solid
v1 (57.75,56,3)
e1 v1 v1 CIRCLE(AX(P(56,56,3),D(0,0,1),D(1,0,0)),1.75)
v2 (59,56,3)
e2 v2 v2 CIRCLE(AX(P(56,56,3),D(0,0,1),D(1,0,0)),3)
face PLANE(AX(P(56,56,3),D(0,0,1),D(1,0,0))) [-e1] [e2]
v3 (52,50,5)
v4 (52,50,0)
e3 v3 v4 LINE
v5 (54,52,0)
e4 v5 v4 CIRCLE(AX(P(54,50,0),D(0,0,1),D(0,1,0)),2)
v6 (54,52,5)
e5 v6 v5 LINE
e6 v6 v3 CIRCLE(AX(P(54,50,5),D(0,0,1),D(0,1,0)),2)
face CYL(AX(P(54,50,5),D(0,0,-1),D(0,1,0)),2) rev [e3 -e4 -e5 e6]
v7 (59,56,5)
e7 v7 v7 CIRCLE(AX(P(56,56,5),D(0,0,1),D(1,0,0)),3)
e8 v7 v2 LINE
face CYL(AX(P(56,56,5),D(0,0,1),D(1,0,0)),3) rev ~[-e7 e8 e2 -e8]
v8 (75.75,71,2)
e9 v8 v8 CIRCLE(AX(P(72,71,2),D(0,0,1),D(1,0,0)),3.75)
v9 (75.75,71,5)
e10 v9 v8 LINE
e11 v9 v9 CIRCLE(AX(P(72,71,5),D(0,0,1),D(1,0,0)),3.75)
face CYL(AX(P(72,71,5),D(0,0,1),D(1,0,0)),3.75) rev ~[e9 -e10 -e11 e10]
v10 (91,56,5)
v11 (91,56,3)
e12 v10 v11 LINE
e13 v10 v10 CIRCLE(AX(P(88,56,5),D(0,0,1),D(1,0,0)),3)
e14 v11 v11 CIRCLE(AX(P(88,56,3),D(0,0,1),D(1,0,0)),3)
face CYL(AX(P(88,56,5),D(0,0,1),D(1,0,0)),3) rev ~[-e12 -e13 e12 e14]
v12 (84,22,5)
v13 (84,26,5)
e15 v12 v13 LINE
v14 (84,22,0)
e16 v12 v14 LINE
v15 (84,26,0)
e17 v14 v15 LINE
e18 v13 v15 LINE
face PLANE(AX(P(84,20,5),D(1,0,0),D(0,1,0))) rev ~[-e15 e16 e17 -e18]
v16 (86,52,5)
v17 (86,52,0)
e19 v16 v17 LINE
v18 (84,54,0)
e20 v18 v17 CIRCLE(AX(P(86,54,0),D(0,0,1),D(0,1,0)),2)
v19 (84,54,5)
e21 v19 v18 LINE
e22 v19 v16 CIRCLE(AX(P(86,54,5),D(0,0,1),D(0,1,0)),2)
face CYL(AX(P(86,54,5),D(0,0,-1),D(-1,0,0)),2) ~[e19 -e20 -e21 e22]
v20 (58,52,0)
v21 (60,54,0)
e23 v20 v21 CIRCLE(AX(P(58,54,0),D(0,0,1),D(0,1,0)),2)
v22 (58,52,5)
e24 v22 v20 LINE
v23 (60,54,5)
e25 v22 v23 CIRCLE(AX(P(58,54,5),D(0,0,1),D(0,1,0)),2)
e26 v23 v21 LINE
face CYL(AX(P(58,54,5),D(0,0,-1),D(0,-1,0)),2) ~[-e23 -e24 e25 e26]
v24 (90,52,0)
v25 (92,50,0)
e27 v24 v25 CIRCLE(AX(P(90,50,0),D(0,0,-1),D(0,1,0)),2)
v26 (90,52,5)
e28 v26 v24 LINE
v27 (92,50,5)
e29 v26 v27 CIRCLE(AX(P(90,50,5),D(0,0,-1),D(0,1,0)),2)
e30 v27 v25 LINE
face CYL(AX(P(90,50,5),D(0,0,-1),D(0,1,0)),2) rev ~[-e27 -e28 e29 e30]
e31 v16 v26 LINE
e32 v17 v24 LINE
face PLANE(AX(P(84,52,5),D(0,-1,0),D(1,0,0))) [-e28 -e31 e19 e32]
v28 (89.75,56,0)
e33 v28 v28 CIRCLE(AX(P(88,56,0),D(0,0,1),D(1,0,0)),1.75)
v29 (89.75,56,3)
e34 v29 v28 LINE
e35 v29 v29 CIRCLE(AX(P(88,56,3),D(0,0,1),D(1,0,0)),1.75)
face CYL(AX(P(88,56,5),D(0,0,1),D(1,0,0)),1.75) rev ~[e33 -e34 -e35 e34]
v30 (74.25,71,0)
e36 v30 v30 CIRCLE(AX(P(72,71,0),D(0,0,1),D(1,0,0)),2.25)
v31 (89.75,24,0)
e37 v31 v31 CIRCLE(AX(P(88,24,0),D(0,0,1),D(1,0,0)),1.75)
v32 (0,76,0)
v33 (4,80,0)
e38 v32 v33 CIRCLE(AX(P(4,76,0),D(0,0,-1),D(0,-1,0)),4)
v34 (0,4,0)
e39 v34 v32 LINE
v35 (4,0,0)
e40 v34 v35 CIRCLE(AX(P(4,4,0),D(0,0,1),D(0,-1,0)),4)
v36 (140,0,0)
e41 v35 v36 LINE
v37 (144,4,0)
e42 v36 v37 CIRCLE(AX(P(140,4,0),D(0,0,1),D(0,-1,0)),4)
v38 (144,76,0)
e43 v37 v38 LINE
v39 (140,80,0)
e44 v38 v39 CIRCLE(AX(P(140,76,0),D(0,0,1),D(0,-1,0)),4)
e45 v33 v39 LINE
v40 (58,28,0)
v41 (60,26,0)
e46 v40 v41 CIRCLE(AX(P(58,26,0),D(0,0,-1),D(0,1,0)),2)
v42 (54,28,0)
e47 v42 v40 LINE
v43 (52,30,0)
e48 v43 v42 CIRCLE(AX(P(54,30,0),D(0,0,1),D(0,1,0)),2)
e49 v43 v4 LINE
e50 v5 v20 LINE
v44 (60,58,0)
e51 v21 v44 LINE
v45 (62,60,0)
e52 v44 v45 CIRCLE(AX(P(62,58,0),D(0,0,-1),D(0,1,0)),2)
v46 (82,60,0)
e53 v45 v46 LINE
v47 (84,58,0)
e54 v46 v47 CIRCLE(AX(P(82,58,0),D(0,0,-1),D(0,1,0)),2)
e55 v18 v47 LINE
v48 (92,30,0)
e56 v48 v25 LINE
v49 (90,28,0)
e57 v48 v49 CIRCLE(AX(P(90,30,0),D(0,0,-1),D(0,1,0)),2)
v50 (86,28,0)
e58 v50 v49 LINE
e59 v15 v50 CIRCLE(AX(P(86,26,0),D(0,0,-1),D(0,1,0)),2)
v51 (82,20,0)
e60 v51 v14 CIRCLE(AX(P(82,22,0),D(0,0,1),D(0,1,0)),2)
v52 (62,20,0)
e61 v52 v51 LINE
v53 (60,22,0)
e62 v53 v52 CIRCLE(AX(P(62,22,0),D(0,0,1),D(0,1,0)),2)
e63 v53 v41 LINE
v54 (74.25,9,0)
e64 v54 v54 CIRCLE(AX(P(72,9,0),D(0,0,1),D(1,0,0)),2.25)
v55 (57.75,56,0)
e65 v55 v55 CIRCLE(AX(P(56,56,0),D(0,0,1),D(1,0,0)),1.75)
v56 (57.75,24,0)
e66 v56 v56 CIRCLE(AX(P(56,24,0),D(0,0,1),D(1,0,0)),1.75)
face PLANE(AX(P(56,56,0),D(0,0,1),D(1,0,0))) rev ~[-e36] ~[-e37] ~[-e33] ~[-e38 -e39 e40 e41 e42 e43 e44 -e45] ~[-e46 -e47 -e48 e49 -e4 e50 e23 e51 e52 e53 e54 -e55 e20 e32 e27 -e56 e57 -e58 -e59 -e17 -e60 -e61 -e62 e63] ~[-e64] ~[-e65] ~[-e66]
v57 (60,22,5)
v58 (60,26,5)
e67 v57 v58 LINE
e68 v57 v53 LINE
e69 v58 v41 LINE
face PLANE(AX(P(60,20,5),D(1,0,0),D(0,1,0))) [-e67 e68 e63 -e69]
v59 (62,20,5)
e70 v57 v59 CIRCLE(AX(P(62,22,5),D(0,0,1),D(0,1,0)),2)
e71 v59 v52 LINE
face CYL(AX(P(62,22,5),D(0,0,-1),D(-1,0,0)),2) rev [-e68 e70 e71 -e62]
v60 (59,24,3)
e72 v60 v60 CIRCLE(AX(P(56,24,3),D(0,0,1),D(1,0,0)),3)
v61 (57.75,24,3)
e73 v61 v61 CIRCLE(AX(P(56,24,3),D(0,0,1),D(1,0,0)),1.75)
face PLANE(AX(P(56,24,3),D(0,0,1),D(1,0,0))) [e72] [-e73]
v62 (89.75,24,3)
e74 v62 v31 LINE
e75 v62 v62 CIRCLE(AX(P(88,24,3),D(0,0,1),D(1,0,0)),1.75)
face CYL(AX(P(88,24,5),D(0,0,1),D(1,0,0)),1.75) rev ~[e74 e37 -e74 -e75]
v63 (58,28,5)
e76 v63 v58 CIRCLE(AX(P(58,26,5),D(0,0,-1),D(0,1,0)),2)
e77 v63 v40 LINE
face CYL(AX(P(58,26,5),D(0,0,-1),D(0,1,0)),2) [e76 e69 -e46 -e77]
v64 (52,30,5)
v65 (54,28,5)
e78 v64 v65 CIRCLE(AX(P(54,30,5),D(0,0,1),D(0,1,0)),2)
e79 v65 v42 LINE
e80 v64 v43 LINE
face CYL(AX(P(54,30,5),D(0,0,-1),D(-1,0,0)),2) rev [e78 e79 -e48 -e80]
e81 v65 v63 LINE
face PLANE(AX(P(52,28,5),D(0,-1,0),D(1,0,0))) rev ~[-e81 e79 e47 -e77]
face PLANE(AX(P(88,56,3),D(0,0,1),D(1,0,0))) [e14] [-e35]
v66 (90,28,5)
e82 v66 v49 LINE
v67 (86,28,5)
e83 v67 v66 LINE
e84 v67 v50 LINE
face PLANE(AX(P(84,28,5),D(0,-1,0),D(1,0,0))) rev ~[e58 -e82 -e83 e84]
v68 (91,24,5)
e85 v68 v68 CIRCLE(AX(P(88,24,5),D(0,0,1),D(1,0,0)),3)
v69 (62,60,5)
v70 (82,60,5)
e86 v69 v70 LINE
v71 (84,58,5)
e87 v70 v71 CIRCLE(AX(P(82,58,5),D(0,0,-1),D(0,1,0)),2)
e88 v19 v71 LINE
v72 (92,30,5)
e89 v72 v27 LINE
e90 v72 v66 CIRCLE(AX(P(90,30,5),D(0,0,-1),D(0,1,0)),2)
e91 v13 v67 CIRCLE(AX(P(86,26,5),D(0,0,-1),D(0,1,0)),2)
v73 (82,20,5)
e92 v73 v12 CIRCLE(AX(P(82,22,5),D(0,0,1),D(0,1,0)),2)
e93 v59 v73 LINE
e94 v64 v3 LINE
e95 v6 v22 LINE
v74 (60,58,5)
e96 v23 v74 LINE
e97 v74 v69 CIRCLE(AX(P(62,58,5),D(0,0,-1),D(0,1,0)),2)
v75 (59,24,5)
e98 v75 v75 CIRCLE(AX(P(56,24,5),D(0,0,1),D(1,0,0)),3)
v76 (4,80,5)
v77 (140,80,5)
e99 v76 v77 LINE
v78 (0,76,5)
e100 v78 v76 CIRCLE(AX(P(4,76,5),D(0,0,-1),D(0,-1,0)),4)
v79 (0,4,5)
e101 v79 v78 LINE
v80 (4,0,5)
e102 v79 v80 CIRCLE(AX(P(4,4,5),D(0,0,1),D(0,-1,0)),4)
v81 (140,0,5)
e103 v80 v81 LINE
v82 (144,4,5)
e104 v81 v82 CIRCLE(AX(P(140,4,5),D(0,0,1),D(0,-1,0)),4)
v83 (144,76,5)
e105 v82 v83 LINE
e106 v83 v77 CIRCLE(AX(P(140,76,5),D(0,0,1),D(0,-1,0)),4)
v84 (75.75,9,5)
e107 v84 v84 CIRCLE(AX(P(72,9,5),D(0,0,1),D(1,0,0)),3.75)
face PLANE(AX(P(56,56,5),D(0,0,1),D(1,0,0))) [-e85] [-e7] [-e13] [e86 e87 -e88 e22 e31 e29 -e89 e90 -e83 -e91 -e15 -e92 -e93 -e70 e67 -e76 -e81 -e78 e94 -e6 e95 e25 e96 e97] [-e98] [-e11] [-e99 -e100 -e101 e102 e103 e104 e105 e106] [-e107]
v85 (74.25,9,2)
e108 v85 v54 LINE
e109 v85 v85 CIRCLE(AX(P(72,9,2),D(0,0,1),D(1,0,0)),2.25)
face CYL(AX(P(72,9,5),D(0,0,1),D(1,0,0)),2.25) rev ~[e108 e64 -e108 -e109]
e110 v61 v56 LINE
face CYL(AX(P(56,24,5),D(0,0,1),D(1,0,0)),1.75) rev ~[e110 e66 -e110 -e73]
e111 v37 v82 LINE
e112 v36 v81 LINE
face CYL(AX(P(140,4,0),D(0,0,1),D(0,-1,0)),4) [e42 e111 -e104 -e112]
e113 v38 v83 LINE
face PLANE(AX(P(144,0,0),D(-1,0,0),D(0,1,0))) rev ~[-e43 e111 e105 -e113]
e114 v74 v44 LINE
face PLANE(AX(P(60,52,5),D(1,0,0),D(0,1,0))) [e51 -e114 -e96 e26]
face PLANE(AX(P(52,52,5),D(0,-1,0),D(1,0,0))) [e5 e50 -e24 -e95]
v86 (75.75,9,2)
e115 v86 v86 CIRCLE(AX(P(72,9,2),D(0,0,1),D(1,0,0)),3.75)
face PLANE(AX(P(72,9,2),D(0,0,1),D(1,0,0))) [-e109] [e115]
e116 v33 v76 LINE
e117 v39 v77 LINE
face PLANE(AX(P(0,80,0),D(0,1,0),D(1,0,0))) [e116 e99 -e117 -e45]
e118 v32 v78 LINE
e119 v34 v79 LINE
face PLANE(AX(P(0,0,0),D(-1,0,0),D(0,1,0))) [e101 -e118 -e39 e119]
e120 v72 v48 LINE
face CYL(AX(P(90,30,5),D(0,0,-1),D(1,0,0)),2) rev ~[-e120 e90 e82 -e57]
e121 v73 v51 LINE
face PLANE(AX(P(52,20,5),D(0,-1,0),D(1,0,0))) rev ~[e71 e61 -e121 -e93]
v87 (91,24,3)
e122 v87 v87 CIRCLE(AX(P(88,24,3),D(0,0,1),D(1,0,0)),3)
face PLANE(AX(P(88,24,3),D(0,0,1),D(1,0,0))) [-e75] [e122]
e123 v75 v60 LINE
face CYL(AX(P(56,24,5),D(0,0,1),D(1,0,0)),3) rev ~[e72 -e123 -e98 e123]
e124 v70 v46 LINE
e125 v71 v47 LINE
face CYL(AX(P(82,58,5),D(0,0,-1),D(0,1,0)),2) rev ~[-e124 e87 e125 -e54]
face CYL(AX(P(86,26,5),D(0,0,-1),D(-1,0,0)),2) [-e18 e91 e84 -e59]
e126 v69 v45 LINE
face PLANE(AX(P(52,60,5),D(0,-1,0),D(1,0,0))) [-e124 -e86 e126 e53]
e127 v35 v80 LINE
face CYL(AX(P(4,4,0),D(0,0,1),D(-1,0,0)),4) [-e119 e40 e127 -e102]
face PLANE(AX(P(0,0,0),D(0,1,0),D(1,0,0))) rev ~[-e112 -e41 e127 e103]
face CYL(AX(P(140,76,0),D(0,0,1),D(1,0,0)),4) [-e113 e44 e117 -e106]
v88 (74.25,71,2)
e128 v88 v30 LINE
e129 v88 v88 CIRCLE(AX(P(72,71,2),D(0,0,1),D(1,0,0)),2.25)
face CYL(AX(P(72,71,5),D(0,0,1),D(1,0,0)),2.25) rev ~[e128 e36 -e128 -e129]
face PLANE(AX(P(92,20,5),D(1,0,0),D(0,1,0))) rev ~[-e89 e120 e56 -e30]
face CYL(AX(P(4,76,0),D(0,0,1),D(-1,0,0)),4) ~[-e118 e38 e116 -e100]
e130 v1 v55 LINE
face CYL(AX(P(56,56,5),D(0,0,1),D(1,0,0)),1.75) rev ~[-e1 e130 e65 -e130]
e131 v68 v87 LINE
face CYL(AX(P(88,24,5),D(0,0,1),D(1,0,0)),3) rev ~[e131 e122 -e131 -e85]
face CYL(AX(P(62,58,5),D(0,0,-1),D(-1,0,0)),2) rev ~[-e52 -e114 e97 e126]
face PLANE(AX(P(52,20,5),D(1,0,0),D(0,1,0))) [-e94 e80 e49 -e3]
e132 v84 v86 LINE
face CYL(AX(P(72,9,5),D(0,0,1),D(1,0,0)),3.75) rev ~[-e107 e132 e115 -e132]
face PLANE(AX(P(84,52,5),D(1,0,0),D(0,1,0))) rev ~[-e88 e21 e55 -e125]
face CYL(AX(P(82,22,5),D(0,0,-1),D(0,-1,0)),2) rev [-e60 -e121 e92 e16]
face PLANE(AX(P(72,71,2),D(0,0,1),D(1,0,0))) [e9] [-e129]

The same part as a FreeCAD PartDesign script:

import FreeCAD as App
import Part
import Sketcher

V = App.Vector


def edges_at(feature, points):
    """Names of the edges that pass closest to the given points."""
    edges = feature.Shape.Edges
    near = lambda p: min(range(len(edges)), key=lambda i: edges[i].distToShape(Part.Vertex(*p))[0])
    return sorted({f"Edge{near(p) + 1}" for p in points})


def add_polygon(sketch, points):
    """Adds a closed chain of lines whose ends are joined by coincident constraints."""
    first, n = sketch.GeometryCount, len(points)
    for a, b in zip(points, points[1:] + points[:1]):
        sketch.addGeometry(Part.LineSegment(App.Vector(*a, 0), App.Vector(*b, 0)), False)
    for i in range(n):
        sketch.addConstraint(Sketcher.Constraint("Coincident", first + i, 2, first + (i + 1) % n, 1))

doc = App.newDocument("Part")
params = doc.addObject("Spreadsheet::Sheet", "Params")
for row, (alias, value) in enumerate([
    ("sketch1_width", "144 mm"),
    ("sketch1_height", "80 mm"),
    ("pad1_length", "5 mm"),
    ("fillet_radius", "4 mm"),
    ("sketch2_diameter", "4.5 mm"),
    ("pocket1_length", "10 mm"),
    ("sketch3_diameter", "7.5 mm"),
    ("pocket2_length", "3 mm"),
    ("sketch4_width", "40 mm"),
    ("pocket3_length", "5 mm"),
    ("sketch5_width", "8 mm"),
    ("pad2_length", "5 mm"),
    ("sketch6_diameter", "3.5 mm"),
    ("pocket4_length", "5 mm"),
    ("fillet2_radius", "2 mm"),
    ("sketch7_diameter", "6 mm"),
    ("pocket5_length", "2 mm"),
], start=1):
    params.set(f"A{row}", alias)
    params.set(f"B{row}", "=" + value)
    params.setAlias(f"B{row}", alias)

body = doc.addObject("PartDesign::Body", "Body")

# Sketch on XY plane
sketch1 = body.newObject("Sketcher::SketchObject", "Sketch")
sketch1.AttachmentSupport = (doc.getObject("XY_Plane"), [""])
sketch1.MapMode = "FlatFace"
add_polygon(sketch1, [(0, 80), (0, 0), (144, 0), (144, 80)])  # lines 0-3
sketch1.addConstraint([
    Sketcher.Constraint("Vertical", 0),
    Sketcher.Constraint("Horizontal", 1),
    Sketcher.Constraint("Vertical", 2),
    Sketcher.Constraint("Horizontal", 3),
    Sketcher.Constraint("Coincident", 0, 2, -1, 1),
    Sketcher.Constraint("DistanceX", 1, 1, 1, 2, 144.0),
    Sketcher.Constraint("DistanceY", 0, 2, 0, 1, 80.0),
])
sketch1.setExpression("Constraints[9]", "Params.sketch1_width")
sketch1.setExpression("Constraints[10]", "Params.sketch1_height")
pad1 = body.newObject("PartDesign::Pad", "Pad")
pad1.Profile = sketch1
pad1.setExpression("Length", "Params.pad1_length")
doc.recompute()

fillet = body.newObject("PartDesign::Fillet", "Fillet")
fillet.Base = (pad1, edges_at(pad1, [
    (144, 0, 2.5),
    (144, 80, 2.5),
    (0, 0, 2.5),
    (0, 80, 2.5),
]))
fillet.setExpression("Radius", "Params.fillet_radius")

# Sketch on XY plane
sketch2 = body.newObject("Sketcher::SketchObject", "Sketch001")
sketch2.AttachmentSupport = (doc.getObject("XY_Plane"), [""])
sketch2.MapMode = "FlatFace"
sketch2.AttachmentOffset = App.Placement(V(0, 0, 5), App.Rotation())
sketch2.addGeometry([
    Part.Circle(V(72, 9, 0), V(0, 0, 1), 2.2),
    Part.Circle(V(72, 71, 0), V(0, 0, 1), 2.2),
], False)
sketch2.addConstraint([
    Sketcher.Constraint("Equal", 0, 1),
    Sketcher.Constraint("Vertical", 0, 3, 1, 3),
    Sketcher.Constraint("Diameter", 0, 4.5),
    Sketcher.Constraint("DistanceX", -1, 1, 0, 3, 72.0),
    Sketcher.Constraint("DistanceY", -1, 1, 0, 3, 9.0),
    Sketcher.Constraint("DistanceY", -1, 1, 1, 3, 71.0),
])
sketch2.setExpression("Constraints[2]", "Params.sketch2_diameter")
pocket1 = body.newObject("PartDesign::Pocket", "Pocket")
pocket1.Profile = sketch2
pocket1.setExpression("Length", "Params.pocket1_length")

# Sketch on XY plane
sketch3 = body.newObject("Sketcher::SketchObject", "Sketch002")
sketch3.AttachmentSupport = (doc.getObject("XY_Plane"), [""])
sketch3.MapMode = "FlatFace"
sketch3.AttachmentOffset = App.Placement(V(0, 0, 5), App.Rotation())
sketch3.addGeometry([
    Part.Circle(V(72, 9, 0), V(0, 0, 1), 3.8),
    Part.Circle(V(72, 71, 0), V(0, 0, 1), 3.8),
], False)
sketch3.addConstraint([
    Sketcher.Constraint("Equal", 0, 1),
    Sketcher.Constraint("Vertical", 0, 3, 1, 3),
    Sketcher.Constraint("Diameter", 0, 7.5),
    Sketcher.Constraint("DistanceX", -1, 1, 0, 3, 72.0),
    Sketcher.Constraint("DistanceY", -1, 1, 0, 3, 9.0),
    Sketcher.Constraint("DistanceY", -1, 1, 1, 3, 71.0),
])
sketch3.setExpression("Constraints[2]", "Params.sketch3_diameter")
pocket2 = body.newObject("PartDesign::Pocket", "Pocket001")
pocket2.Profile = sketch3
pocket2.setExpression("Length", "Params.pocket2_length")

# Sketch on XY plane
sketch4 = body.newObject("Sketcher::SketchObject", "Sketch003")
sketch4.AttachmentSupport = (doc.getObject("XY_Plane"), [""])
sketch4.MapMode = "FlatFace"
sketch4.AttachmentOffset = App.Placement(V(0, 0, 5), App.Rotation())
add_polygon(sketch4, [(52, 60), (52, 20), (92, 20), (92, 60)])  # lines 0-3
sketch4.addConstraint([
    Sketcher.Constraint("Vertical", 0),
    Sketcher.Constraint("Horizontal", 1),
    Sketcher.Constraint("Vertical", 2),
    Sketcher.Constraint("Horizontal", 3),
    Sketcher.Constraint("Equal", 3, 0),
    Sketcher.Constraint("DistanceX", 1, 1, 1, 2, 40.0),
    Sketcher.Constraint("DistanceX", -1, 1, 0, 2, 52.0),
    Sketcher.Constraint("DistanceY", -1, 1, 0, 2, 20.0),
])
sketch4.setExpression("Constraints[9]", "Params.sketch4_width")
pocket3 = body.newObject("PartDesign::Pocket", "Pocket002")
pocket3.Profile = sketch4
pocket3.setExpression("Length", "Params.pocket3_length")

# Sketch on XY plane
sketch5 = body.newObject("Sketcher::SketchObject", "Sketch004")
sketch5.AttachmentSupport = (doc.getObject("XY_Plane"), [""])
sketch5.MapMode = "FlatFace"
sketch5.AttachmentOffset = App.Placement(V(0, 0, 5), App.Rotation())
add_polygon(sketch5, [(52, 60), (52, 52), (60, 52), (60, 60)])  # lines 0-3
add_polygon(sketch5, [(52, 28), (52, 20), (60, 20), (60, 28)])  # lines 4-7
add_polygon(sketch5, [(84, 28), (84, 20), (92, 20), (92, 28)])  # lines 8-11
add_polygon(sketch5, [(84, 60), (84, 52), (92, 52), (92, 60)])  # lines 12-15
sketch5.addConstraint([
    Sketcher.Constraint("Vertical", 0),
    Sketcher.Constraint("Horizontal", 1),
    Sketcher.Constraint("Vertical", 2),
    Sketcher.Constraint("Horizontal", 3),
    Sketcher.Constraint("Vertical", 4),
    Sketcher.Constraint("Horizontal", 5),
    Sketcher.Constraint("Vertical", 6),
    Sketcher.Constraint("Horizontal", 7),
    Sketcher.Constraint("Vertical", 8),
    Sketcher.Constraint("Horizontal", 9),
    Sketcher.Constraint("Vertical", 10),
    Sketcher.Constraint("Horizontal", 11),
    Sketcher.Constraint("Vertical", 12),
    Sketcher.Constraint("Horizontal", 13),
    Sketcher.Constraint("Vertical", 14),
    Sketcher.Constraint("Horizontal", 15),
    Sketcher.Constraint("Horizontal", 5, 2, 8, 2),
    Sketcher.Constraint("Horizontal", 7, 2, 10, 2),
    Sketcher.Constraint("Horizontal", 1, 2, 12, 2),
    Sketcher.Constraint("Horizontal", 3, 2, 14, 2),
    Sketcher.Constraint("Vertical", 3, 2, 4, 2),
    Sketcher.Constraint("Vertical", 2, 2, 5, 2),
    Sketcher.Constraint("Vertical", 11, 2, 12, 2),
    Sketcher.Constraint("Vertical", 10, 2, 13, 2),
    Sketcher.Constraint("Equal", 7, 9),
    Sketcher.Constraint("Equal", 15, 0),
    Sketcher.Constraint("Equal", 2, 4),
    Sketcher.Constraint("DistanceX", 1, 1, 1, 2, 8.0),
    Sketcher.Constraint("DistanceX", -1, 1, 0, 2, 52.0),
    Sketcher.Constraint("DistanceY", -1, 1, 0, 2, 52.0),
    Sketcher.Constraint("DistanceY", -1, 1, 4, 2, 20.0),
    Sketcher.Constraint("DistanceX", -1, 1, 8, 2, 84.0),
])
sketch5.setExpression("Constraints[43]", "Params.sketch5_width")
pad2 = body.newObject("PartDesign::Pad", "Pad001")
pad2.Profile = sketch5
pad2.setExpression("Length", "Params.pad2_length")
pad2.Reversed = True

# Sketch on XY plane
sketch6 = body.newObject("Sketcher::SketchObject", "Sketch005")
sketch6.AttachmentSupport = (doc.getObject("XY_Plane"), [""])
sketch6.MapMode = "FlatFace"
sketch6.AttachmentOffset = App.Placement(V(0, 0, 5), App.Rotation())
sketch6.addGeometry([
    Part.Circle(V(56, 56, 0), V(0, 0, 1), 1.8),
    Part.Circle(V(88, 56, 0), V(0, 0, 1), 1.8),
    Part.Circle(V(56, 24, 0), V(0, 0, 1), 1.8),
    Part.Circle(V(88, 24, 0), V(0, 0, 1), 1.8),
], False)
sketch6.addConstraint([
    Sketcher.Constraint("Equal", 0, 1),
    Sketcher.Constraint("Equal", 1, 2),
    Sketcher.Constraint("Equal", 2, 3),
    Sketcher.Constraint("Horizontal", 0, 3, 1, 3),
    Sketcher.Constraint("Horizontal", 2, 3, 3, 3),
    Sketcher.Constraint("Vertical", 0, 3, 2, 3),
    Sketcher.Constraint("Vertical", 1, 3, 3, 3),
    Sketcher.Constraint("Diameter", 0, 3.5),
    Sketcher.Constraint("DistanceX", -1, 1, 0, 3, 56.0),
    Sketcher.Constraint("DistanceY", -1, 1, 0, 3, 56.0),
    Sketcher.Constraint("DistanceX", -1, 1, 1, 3, 88.0),
    Sketcher.Constraint("DistanceY", -1, 1, 2, 3, 24.0),
])
sketch6.setExpression("Constraints[7]", "Params.sketch6_diameter")
pocket4 = body.newObject("PartDesign::Pocket", "Pocket003")
pocket4.Profile = sketch6
pocket4.setExpression("Length", "Params.pocket4_length")
doc.recompute()

fillet2 = body.newObject("PartDesign::Fillet", "Fillet001")
fillet2.Base = (pocket4, edges_at(pocket4, [
    (60, 52, 2.5),
    (60, 60, 2.5),
    (52, 52, 2.5),
    (52, 28, 2.5),
    (60, 28, 2.5),
    (60, 20, 2.5),
    (84, 28, 2.5),
    (92, 28, 2.5),
    (84, 20, 2.5),
    (84, 60, 2.5),
    (84, 52, 2.5),
    (92, 52, 2.5),
]))
fillet2.setExpression("Radius", "Params.fillet2_radius")

# Sketch on XY plane
sketch7 = body.newObject("Sketcher::SketchObject", "Sketch006")
sketch7.AttachmentSupport = (doc.getObject("XY_Plane"), [""])
sketch7.MapMode = "FlatFace"
sketch7.AttachmentOffset = App.Placement(V(0, 0, 5), App.Rotation())
sketch7.addGeometry([
    Part.Circle(V(56, 24, 0), V(0, 0, 1), 3),
    Part.Circle(V(56, 56, 0), V(0, 0, 1), 3),
    Part.Circle(V(88, 56, 0), V(0, 0, 1), 3),
    Part.Circle(V(88, 24, 0), V(0, 0, 1), 3),
], False)
sketch7.addConstraint([
    Sketcher.Constraint("Equal", 0, 1),
    Sketcher.Constraint("Equal", 1, 2),
    Sketcher.Constraint("Equal", 2, 3),
    Sketcher.Constraint("Horizontal", 1, 3, 2, 3),
    Sketcher.Constraint("Horizontal", 0, 3, 3, 3),
    Sketcher.Constraint("Vertical", 0, 3, 1, 3),
    Sketcher.Constraint("Vertical", 2, 3, 3, 3),
    Sketcher.Constraint("Diameter", 0, 6.0),
    Sketcher.Constraint("DistanceX", -1, 1, 0, 3, 56.0),
    Sketcher.Constraint("DistanceY", -1, 1, 0, 3, 24.0),
    Sketcher.Constraint("DistanceY", -1, 1, 1, 3, 56.0),
    Sketcher.Constraint("DistanceX", -1, 1, 2, 3, 88.0),
])
sketch7.setExpression("Constraints[7]", "Params.sketch7_diameter")
pocket5 = body.newObject("PartDesign::Pocket", "Pocket004")
pocket5.Profile = sketch7
pocket5.setExpression("Length", "Params.pocket5_length")

doc.recompute()
